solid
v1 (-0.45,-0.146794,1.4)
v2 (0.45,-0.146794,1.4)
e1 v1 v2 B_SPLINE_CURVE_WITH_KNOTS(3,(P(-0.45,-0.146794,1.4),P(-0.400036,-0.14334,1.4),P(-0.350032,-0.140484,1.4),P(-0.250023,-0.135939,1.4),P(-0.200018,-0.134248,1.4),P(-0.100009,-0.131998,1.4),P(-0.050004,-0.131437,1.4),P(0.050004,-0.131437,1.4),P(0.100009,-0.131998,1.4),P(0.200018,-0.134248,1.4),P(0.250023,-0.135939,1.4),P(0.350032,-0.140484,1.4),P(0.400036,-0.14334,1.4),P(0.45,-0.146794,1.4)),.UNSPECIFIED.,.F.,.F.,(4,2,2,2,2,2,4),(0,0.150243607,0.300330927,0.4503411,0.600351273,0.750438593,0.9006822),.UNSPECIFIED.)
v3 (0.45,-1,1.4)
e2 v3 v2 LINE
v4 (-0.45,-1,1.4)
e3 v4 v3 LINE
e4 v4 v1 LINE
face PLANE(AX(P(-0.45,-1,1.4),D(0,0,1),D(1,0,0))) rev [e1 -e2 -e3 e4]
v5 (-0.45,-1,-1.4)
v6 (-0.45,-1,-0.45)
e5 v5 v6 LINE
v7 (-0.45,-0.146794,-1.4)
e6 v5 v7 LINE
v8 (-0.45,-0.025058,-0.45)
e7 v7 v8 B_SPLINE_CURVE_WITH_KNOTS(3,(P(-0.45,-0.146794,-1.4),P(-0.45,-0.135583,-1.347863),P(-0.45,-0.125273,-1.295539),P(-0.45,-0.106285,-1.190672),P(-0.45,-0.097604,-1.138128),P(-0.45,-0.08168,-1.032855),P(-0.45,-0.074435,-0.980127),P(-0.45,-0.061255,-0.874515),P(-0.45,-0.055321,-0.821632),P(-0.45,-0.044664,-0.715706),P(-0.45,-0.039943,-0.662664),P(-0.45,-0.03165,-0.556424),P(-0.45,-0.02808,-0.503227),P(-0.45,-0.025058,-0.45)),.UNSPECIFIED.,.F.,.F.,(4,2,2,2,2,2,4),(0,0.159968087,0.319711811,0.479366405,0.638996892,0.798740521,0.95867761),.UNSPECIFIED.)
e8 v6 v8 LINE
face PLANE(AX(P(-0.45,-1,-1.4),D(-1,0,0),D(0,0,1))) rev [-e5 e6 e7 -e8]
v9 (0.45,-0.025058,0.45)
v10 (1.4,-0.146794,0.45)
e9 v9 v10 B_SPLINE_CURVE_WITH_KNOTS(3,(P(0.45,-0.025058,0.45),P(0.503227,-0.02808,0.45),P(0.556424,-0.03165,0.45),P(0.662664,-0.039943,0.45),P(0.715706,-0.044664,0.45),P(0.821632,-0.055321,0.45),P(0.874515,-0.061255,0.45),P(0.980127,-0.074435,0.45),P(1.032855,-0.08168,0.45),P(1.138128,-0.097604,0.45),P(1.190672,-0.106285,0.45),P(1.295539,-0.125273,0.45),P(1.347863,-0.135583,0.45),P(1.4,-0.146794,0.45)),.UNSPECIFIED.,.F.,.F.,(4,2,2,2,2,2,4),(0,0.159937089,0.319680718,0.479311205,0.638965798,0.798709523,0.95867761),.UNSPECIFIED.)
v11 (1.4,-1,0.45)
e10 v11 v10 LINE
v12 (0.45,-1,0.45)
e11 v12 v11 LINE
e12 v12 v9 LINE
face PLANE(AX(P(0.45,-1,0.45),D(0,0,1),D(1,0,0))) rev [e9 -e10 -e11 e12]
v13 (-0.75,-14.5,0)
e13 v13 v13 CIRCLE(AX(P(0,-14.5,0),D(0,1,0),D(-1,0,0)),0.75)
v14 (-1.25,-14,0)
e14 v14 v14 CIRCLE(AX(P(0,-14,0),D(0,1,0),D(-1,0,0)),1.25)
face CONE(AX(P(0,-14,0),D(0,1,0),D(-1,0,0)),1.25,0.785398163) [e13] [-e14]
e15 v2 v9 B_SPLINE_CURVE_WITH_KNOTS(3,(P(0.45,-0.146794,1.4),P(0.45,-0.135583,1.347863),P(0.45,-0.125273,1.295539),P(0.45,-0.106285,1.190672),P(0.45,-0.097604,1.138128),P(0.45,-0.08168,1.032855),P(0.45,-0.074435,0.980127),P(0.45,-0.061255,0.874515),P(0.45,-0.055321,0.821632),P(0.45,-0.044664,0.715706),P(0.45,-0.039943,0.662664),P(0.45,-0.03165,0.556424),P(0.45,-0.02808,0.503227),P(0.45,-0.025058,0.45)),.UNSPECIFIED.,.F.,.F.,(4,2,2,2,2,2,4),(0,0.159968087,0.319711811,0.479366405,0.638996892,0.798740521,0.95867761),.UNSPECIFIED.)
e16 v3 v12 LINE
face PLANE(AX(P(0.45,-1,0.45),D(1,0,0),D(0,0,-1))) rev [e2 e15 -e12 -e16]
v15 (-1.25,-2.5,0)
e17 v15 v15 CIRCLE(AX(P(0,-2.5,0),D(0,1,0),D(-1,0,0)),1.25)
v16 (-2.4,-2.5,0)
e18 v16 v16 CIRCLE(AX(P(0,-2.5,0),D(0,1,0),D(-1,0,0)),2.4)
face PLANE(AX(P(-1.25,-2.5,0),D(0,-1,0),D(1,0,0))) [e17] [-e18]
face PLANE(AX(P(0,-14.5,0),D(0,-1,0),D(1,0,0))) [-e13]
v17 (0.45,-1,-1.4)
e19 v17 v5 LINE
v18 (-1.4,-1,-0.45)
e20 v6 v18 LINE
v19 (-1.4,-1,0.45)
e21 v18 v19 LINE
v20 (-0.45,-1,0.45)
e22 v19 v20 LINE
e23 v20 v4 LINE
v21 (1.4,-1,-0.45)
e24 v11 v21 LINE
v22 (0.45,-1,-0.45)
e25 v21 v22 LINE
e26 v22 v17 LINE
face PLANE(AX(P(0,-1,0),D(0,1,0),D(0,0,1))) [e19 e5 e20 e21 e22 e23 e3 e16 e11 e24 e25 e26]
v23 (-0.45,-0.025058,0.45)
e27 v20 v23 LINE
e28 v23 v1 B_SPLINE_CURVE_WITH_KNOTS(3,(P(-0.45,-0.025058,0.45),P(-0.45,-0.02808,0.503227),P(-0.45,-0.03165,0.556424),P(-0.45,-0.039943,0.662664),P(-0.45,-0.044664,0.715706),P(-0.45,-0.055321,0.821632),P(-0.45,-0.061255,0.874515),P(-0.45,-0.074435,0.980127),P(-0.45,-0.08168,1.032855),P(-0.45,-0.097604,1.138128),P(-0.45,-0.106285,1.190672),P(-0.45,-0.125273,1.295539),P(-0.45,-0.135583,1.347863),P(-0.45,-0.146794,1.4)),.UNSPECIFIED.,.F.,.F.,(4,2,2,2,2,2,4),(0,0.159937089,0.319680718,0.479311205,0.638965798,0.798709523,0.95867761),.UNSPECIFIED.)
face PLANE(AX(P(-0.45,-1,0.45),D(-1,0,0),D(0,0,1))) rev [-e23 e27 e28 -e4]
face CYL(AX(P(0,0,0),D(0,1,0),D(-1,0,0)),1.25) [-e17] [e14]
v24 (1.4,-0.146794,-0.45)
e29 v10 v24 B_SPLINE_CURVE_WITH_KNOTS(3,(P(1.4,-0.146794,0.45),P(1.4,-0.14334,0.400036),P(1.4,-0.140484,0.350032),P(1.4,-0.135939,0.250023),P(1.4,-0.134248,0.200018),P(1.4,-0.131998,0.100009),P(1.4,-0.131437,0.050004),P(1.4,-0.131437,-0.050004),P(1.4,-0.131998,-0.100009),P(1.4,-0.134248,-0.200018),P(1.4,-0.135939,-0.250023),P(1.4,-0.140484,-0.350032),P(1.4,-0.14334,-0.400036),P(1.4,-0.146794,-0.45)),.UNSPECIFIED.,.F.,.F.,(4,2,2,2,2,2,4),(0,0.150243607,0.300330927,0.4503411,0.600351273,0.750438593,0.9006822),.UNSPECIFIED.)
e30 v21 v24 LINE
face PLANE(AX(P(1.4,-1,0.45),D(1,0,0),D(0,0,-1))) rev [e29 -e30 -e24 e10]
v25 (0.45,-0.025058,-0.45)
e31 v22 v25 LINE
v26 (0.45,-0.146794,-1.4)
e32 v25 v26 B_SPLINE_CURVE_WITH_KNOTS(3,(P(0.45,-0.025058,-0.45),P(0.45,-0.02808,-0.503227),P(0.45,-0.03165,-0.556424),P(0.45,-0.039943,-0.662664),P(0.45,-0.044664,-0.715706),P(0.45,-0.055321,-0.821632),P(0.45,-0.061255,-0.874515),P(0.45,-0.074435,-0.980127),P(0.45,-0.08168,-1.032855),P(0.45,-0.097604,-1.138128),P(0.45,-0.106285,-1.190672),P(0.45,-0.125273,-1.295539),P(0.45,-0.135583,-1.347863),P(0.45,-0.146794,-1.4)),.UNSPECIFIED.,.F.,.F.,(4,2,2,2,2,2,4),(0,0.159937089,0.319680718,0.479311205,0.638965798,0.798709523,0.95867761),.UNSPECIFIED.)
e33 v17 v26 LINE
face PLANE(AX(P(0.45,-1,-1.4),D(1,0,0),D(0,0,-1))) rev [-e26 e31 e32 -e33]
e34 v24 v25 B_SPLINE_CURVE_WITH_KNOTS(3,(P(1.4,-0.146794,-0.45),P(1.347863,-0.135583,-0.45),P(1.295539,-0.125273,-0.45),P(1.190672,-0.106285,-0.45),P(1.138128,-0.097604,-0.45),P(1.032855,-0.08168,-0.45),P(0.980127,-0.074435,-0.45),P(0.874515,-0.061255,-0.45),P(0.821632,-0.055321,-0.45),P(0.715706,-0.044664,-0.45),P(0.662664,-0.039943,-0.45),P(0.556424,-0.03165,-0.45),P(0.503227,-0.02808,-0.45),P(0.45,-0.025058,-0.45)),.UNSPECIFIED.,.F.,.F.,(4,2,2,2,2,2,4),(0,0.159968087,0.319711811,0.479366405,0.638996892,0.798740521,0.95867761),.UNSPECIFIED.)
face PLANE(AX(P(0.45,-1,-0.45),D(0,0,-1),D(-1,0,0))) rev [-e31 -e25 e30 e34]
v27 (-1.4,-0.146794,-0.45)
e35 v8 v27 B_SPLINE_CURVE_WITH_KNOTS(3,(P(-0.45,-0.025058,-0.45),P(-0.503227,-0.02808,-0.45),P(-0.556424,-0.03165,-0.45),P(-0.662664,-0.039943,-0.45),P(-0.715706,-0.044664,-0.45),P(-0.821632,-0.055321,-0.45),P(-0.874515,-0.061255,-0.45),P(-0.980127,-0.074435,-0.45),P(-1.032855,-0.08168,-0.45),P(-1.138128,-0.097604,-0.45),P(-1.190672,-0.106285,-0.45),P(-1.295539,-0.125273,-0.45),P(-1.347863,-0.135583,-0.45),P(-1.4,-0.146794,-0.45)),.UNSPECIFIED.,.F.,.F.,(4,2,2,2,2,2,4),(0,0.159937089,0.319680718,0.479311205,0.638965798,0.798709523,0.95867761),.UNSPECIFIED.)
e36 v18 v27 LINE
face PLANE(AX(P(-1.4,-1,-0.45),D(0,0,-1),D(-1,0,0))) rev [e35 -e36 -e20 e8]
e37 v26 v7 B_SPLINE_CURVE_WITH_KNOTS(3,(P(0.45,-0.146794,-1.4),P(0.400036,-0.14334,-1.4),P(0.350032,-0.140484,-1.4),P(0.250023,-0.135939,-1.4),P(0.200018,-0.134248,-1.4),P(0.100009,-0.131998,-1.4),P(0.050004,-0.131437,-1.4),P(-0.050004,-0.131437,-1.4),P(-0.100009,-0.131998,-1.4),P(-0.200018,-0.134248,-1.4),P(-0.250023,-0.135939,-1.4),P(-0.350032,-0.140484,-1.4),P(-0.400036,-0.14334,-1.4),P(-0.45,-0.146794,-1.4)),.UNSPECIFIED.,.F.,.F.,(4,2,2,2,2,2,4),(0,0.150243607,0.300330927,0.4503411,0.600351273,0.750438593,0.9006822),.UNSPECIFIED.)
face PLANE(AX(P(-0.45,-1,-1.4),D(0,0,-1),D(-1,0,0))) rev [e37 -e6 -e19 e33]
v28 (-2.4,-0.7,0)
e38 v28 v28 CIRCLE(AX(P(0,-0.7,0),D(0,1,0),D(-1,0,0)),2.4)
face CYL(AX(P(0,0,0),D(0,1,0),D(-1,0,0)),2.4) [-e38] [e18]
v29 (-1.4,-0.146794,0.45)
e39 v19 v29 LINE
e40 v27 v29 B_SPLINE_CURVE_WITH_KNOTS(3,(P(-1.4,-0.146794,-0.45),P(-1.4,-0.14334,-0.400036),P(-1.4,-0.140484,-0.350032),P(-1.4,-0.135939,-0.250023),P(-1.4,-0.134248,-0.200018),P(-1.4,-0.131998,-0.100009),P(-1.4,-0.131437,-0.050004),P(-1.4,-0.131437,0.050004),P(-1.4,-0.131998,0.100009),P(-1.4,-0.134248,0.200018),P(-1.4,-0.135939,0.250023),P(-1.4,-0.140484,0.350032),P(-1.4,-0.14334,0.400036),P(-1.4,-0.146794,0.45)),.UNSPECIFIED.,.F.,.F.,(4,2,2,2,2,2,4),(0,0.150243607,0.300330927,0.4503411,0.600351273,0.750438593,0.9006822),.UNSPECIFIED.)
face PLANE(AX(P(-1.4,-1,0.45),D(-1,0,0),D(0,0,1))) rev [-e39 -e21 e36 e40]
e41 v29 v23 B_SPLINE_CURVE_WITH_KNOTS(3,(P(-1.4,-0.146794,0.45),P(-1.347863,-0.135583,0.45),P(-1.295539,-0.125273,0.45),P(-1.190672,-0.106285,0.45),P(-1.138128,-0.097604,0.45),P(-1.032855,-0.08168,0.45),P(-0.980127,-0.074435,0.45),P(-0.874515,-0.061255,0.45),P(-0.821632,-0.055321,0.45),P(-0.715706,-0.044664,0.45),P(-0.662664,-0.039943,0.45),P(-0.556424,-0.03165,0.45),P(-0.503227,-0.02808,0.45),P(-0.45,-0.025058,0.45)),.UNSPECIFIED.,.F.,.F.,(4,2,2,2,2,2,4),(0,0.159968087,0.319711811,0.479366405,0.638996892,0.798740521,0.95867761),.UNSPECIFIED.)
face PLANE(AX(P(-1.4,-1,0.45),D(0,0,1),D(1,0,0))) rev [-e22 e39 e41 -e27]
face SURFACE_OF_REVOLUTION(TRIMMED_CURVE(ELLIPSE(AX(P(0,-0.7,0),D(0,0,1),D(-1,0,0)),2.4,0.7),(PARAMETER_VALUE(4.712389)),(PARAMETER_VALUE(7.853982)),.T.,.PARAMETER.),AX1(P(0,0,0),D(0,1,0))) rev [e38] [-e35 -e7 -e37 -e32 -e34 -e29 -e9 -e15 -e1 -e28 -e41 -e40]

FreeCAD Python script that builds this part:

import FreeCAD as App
import Part
import Sketcher

V = App.Vector
Q = App.Units.Quantity

doc = App.newDocument("Part")
body = doc.addObject("PartDesign::Body", "Body")

# Sketch on XY plane
sketch1 = body.newObject("Sketcher::SketchObject", "Sketch")
sketch1.AttachmentSupport = (doc.getObject("XY_Plane"), [""])
sketch1.MapMode = "FlatFace"
sketch1.addGeometry(Part.LineSegment(V(-2.4, -0.7, 0), V(-2.4, -2.5, 0)), False)
sketch1.addGeometry(Part.LineSegment(V(-2.4, -2.5, 0), V(-1.25, -2.5, 0)), False)
sketch1.addGeometry(Part.LineSegment(V(-1.25, -2.5, 0), V(-1.25, -14, 0)), False)
sketch1.addGeometry(Part.LineSegment(V(-1.25, -14, 0), V(-0.75, -14.5, 0)), False)
sketch1.addGeometry(Part.LineSegment(V(-0.75, -14.5, 0), V(0, -14.5, 0)), False)
sketch1.addGeometry(Part.LineSegment(V(0, -14.5, 0), V(0, 0, 0)), False)
sketch1.addGeometry(Part.BSplineCurve([V(0, 0, 0), V(-2.4, 0, 0), V(-2.4, -0.7, 0)], [3, 3], [4.71238898, 6.283185307], False, 2, [1, 0.707106781, 1], False), False)
sketch1.addConstraint(Sketcher.Constraint("Block", 6))
sketch1.addConstraint(Sketcher.Constraint("Coincident", 0, 2, 1, 1))
sketch1.addConstraint(Sketcher.Constraint("Coincident", 1, 2, 2, 1))
sketch1.addConstraint(Sketcher.Constraint("Coincident", 2, 2, 3, 1))
sketch1.addConstraint(Sketcher.Constraint("Coincident", 3, 2, 4, 1))
sketch1.addConstraint(Sketcher.Constraint("Coincident", 4, 2, 5, 1))
sketch1.addConstraint(Sketcher.Constraint("Coincident", 5, 2, 6, 1))
sketch1.addConstraint(Sketcher.Constraint("Coincident", 6, 2, 0, 1))
sketch1.addConstraint(Sketcher.Constraint("Vertical", 0))
sketch1.addConstraint(Sketcher.Constraint("Horizontal", 1))
sketch1.addConstraint(Sketcher.Constraint("Vertical", 2))
sketch1.addConstraint(Sketcher.Constraint("Horizontal", 4))
sketch1.addConstraint(Sketcher.Constraint("Vertical", 5))
sketch1.addConstraint(Sketcher.Constraint("DistanceY", 0, 2, 0, 1, Q("1.8 mm")))
sketch1.addConstraint(Sketcher.Constraint("DistanceY", 2, 2, 2, 1, Q("11.5 mm")))
sketch1.addConstraint(Sketcher.Constraint("DistanceY", 5, 1, 5, 2, Q("14.5 mm")))
sketch1.addConstraint(Sketcher.Constraint("DistanceX", 1, 1, 1, 2, Q("1.15 mm")))
sketch1.addConstraint(Sketcher.Constraint("DistanceX", 4, 1, 4, 2, Q("0.75 mm")))
revolution = body.newObject("PartDesign::Revolution", "Revolution")
revolution.Profile = sketch1
revolution.ReferenceAxis = (sketch1, ["V_Axis"])
revolution.Angle = 360

# Sketch on XZ plane
sketch2 = body.newObject("Sketcher::SketchObject", "Sketch001")
sketch2.AttachmentSupport = (doc.getObject("XZ_Plane"), [""])
sketch2.MapMode = "FlatFace"
sketch2.addGeometry(Part.LineSegment(V(0.5, -1.4, 0), V(-0.5, -1.4, 0)), False)
sketch2.addGeometry(Part.LineSegment(V(-0.5, -1.4, 0), V(-0.5, -0.5, 0)), False)
sketch2.addGeometry(Part.LineSegment(V(-0.5, -0.5, 0), V(-1.4, -0.5, 0)), False)
sketch2.addGeometry(Part.LineSegment(V(-1.4, -0.5, 0), V(-1.4, 0.5, 0)), False)
sketch2.addGeometry(Part.LineSegment(V(-1.4, 0.5, 0), V(-0.5, 0.5, 0)), False)
sketch2.addGeometry(Part.LineSegment(V(-0.5, 0.5, 0), V(-0.5, 1.4, 0)), False)
sketch2.addGeometry(Part.LineSegment(V(-0.5, 1.4, 0), V(0.5, 1.4, 0)), False)
sketch2.addGeometry(Part.LineSegment(V(0.5, 1.4, 0), V(0.5, 0.5, 0)), False)
sketch2.addGeometry(Part.LineSegment(V(0.5, 0.5, 0), V(1.4, 0.5, 0)), False)
sketch2.addGeometry(Part.LineSegment(V(1.4, 0.5, 0), V(1.4, -0.5, 0)), False)
sketch2.addGeometry(Part.LineSegment(V(1.4, -0.5, 0), V(0.5, -0.5, 0)), False)
sketch2.addGeometry(Part.LineSegment(V(0.5, -0.5, 0), V(0.5, -1.4, 0)), False)
sketch2.addConstraint(Sketcher.Constraint("Coincident", 0, 2, 1, 1))
sketch2.addConstraint(Sketcher.Constraint("Coincident", 1, 2, 2, 1))
sketch2.addConstraint(Sketcher.Constraint("Coincident", 2, 2, 3, 1))
sketch2.addConstraint(Sketcher.Constraint("Coincident", 3, 2, 4, 1))
sketch2.addConstraint(Sketcher.Constraint("Coincident", 4, 2, 5, 1))
sketch2.addConstraint(Sketcher.Constraint("Coincident", 5, 2, 6, 1))
sketch2.addConstraint(Sketcher.Constraint("Coincident", 6, 2, 7, 1))
sketch2.addConstraint(Sketcher.Constraint("Coincident", 7, 2, 8, 1))
sketch2.addConstraint(Sketcher.Constraint("Coincident", 8, 2, 9, 1))
sketch2.addConstraint(Sketcher.Constraint("Coincident", 9, 2, 10, 1))
sketch2.addConstraint(Sketcher.Constraint("Coincident", 10, 2, 11, 1))
sketch2.addConstraint(Sketcher.Constraint("Coincident", 11, 2, 0, 1))
sketch2.addConstraint(Sketcher.Constraint("Horizontal", 0))
sketch2.addConstraint(Sketcher.Constraint("Vertical", 1))
sketch2.addConstraint(Sketcher.Constraint("Horizontal", 2))
sketch2.addConstraint(Sketcher.Constraint("Vertical", 3))
sketch2.addConstraint(Sketcher.Constraint("Horizontal", 4))
sketch2.addConstraint(Sketcher.Constraint("Vertical", 5))
sketch2.addConstraint(Sketcher.Constraint("Horizontal", 6))
sketch2.addConstraint(Sketcher.Constraint("Vertical", 7))
sketch2.addConstraint(Sketcher.Constraint("Horizontal", 8))
sketch2.addConstraint(Sketcher.Constraint("Vertical", 9))
sketch2.addConstraint(Sketcher.Constraint("Horizontal", 10))
sketch2.addConstraint(Sketcher.Constraint("Vertical", 11))
sketch2.addConstraint(Sketcher.Constraint("Symmetric", 0, 2, 6, 2, -1, 1))
sketch2.addConstraint(Sketcher.Constraint("Symmetric", 2, 2, 8, 2, -1, 1))
sketch2.addConstraint(Sketcher.Constraint("Symmetric", 4, 2, 10, 2, -1, 1))
sketch2.addConstraint(Sketcher.Constraint("Symmetric", 4, 2, 7, 2, -2))
sketch2.addConstraint(Sketcher.Constraint("Equal", 10, 1))
sketch2.addConstraint(Sketcher.Constraint("Equal", 6, 3))
sketch2.addConstraint(Sketcher.Constraint("DistanceX", 0, 2, 0, 1, Q("0.9 mm")))
sketch2.addConstraint(Sketcher.Constraint("DistanceX", 2, 2, 2, 1, Q("0.95 mm")))
pocket1 = body.newObject("PartDesign::Pocket", "Pocket")
pocket1.Profile = sketch2
pocket1.Length = 1
pocket1.Reversed = True

doc.recompute()
